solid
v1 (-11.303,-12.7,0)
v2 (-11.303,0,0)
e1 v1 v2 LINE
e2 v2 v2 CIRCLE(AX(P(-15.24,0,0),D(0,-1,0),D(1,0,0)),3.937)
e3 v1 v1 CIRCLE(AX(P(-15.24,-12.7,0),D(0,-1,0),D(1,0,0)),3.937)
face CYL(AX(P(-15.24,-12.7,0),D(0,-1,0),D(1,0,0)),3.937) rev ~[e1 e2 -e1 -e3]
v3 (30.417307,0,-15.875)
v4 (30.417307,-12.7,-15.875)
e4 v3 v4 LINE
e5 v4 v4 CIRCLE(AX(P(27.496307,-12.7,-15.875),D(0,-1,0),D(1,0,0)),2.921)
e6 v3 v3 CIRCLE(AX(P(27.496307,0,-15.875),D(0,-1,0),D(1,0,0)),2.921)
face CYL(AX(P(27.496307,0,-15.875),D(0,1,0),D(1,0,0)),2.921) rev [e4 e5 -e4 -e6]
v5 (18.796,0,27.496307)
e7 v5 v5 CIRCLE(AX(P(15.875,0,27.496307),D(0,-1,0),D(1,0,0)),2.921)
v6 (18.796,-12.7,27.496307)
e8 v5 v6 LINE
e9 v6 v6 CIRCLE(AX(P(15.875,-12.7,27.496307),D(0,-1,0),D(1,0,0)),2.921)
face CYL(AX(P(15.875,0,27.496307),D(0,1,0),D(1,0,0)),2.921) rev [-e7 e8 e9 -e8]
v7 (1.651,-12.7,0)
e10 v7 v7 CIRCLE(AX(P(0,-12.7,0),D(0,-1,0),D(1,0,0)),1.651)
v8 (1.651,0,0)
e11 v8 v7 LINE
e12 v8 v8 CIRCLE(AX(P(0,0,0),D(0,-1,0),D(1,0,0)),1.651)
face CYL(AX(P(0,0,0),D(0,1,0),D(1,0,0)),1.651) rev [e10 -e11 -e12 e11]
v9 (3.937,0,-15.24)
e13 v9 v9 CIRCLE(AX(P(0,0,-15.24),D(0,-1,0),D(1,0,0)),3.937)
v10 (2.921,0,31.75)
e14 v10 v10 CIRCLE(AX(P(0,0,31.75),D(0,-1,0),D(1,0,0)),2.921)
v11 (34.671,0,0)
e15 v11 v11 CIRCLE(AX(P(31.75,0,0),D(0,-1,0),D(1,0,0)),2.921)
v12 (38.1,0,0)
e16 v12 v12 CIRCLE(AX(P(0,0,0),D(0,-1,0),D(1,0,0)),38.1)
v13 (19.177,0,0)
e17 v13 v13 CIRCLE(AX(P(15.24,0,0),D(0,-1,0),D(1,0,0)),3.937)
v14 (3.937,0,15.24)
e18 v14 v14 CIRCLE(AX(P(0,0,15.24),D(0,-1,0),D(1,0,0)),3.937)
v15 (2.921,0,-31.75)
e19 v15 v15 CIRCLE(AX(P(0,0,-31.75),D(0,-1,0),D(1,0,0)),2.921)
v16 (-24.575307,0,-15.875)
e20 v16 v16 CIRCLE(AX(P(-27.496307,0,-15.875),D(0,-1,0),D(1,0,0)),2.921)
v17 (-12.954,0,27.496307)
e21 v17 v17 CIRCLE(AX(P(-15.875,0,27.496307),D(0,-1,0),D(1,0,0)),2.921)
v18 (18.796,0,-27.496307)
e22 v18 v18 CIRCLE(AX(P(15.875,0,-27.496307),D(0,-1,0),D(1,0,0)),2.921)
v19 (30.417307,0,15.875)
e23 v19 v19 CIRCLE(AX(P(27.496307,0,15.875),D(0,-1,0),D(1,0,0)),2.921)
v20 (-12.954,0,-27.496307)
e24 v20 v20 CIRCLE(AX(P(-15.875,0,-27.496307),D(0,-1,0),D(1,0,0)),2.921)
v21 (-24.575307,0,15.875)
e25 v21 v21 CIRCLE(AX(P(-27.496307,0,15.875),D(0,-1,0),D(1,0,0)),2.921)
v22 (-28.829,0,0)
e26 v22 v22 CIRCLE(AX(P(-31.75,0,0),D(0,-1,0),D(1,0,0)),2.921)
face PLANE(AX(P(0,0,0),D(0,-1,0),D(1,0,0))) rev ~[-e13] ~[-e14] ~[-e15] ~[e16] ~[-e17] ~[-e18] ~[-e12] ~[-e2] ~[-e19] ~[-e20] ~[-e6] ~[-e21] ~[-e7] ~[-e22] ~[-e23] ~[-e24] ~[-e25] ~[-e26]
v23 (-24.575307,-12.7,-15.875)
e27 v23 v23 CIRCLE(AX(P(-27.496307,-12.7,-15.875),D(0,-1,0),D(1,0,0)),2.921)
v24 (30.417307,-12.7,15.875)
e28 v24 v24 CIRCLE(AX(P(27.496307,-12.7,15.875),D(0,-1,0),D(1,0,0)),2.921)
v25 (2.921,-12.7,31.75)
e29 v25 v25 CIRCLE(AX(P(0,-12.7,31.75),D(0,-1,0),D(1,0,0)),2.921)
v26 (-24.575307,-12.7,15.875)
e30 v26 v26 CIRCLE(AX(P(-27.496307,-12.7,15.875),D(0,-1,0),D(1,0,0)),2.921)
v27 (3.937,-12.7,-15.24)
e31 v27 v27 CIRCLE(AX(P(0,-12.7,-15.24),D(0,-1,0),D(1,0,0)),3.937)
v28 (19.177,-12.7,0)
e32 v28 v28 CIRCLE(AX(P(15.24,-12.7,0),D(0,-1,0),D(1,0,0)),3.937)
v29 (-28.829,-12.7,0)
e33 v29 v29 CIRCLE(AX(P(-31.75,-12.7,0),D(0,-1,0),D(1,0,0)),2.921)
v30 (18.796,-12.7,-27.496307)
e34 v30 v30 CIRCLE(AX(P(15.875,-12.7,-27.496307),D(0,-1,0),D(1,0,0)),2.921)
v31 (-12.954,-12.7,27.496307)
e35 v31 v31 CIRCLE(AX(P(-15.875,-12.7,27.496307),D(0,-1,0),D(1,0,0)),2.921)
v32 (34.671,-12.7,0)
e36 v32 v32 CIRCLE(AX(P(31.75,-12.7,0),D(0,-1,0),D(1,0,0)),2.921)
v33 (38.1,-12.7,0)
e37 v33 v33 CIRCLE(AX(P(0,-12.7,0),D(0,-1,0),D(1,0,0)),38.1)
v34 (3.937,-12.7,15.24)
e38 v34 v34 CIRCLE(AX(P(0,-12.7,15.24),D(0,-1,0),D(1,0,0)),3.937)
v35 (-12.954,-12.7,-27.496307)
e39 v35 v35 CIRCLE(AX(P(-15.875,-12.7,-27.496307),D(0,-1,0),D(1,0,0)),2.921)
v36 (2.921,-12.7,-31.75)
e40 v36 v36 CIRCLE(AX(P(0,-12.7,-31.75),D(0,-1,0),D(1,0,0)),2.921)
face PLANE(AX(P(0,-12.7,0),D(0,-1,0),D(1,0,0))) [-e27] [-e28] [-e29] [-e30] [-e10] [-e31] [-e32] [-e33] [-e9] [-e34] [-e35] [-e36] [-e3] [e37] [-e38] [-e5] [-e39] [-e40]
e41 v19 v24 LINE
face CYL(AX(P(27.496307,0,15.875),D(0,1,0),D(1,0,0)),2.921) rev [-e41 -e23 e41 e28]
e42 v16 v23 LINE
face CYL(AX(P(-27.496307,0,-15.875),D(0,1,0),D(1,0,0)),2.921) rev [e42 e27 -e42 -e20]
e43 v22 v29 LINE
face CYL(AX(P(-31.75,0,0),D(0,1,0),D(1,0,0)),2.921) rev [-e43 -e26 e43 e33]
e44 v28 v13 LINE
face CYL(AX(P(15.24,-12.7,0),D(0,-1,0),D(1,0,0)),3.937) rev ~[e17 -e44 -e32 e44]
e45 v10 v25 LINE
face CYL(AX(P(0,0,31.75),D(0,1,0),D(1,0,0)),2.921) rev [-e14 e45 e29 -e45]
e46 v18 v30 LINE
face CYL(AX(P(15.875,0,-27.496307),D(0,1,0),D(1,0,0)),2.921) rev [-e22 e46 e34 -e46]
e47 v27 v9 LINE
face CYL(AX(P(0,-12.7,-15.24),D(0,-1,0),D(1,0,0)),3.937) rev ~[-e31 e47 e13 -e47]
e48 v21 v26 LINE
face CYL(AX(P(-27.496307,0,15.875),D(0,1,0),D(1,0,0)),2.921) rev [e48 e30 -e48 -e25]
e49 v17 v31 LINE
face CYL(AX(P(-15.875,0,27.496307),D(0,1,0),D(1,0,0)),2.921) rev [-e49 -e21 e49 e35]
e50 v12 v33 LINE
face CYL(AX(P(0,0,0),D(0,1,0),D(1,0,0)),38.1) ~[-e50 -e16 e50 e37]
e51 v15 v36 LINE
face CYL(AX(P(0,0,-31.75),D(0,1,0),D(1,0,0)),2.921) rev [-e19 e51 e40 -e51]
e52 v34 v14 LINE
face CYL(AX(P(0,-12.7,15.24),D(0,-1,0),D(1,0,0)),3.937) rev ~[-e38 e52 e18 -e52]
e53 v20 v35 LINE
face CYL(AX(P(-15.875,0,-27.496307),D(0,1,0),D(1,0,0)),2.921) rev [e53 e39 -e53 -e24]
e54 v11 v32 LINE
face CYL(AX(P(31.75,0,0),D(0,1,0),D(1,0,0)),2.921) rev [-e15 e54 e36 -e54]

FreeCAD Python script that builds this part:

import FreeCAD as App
import Part
import Sketcher
Q = App.Units.Quantity

doc = App.newDocument("Part")
body = doc.addObject("PartDesign::Body", "Body")

sketch1 = body.newObject("Sketcher::SketchObject", "Sketch")
sketch1.AttachmentSupport = (doc.getObject("XZ_Plane"), [""])
sketch1.MapMode = "FlatFace"
sketch1.addGeometry(Part.Circle(App.Vector(0, 0, 0), App.Vector(0, 0, 1), 38.1), False)
sketch1.addGeometry(Part.Circle(App.Vector(-15.9, -27.5, 0), App.Vector(0, 0, 1), 2.9), False)
sketch1.addGeometry(Part.Circle(App.Vector(-27.5, -15.9, 0), App.Vector(0, 0, 1), 2.9), False)
sketch1.addGeometry(Part.Circle(App.Vector(0, -31.8, 0), App.Vector(0, 0, 1), 2.9), False)
sketch1.addGeometry(Part.Circle(App.Vector(15.9, -27.5, 0), App.Vector(0, 0, 1), 2.9), False)
sketch1.addGeometry(Part.Circle(App.Vector(27.5, -15.9, 0), App.Vector(0, 0, 1), 2.9), False)
sketch1.addGeometry(Part.Circle(App.Vector(-31.8, 0, 0), App.Vector(0, 0, 1), 2.9), False)
sketch1.addGeometry(Part.Circle(App.Vector(-27.5, 15.9, 0), App.Vector(0, 0, 1), 2.9), False)
sketch1.addGeometry(Part.Circle(App.Vector(-15.9, 27.5, 0), App.Vector(0, 0, 1), 2.9), False)
sketch1.addGeometry(Part.Circle(App.Vector(0, 0, 0), App.Vector(0, 0, 1), 1.7), False)
sketch1.addGeometry(Part.Circle(App.Vector(31.8, 0, 0), App.Vector(0, 0, 1), 2.9), False)
sketch1.addGeometry(Part.Circle(App.Vector(27.5, 15.9, 0), App.Vector(0, 0, 1), 2.9), False)
sketch1.addGeometry(Part.Circle(App.Vector(0, 31.8, 0), App.Vector(0, 0, 1), 2.9), False)
sketch1.addGeometry(Part.Circle(App.Vector(15.9, 27.5, 0), App.Vector(0, 0, 1), 2.9), False)
sketch1.addConstraint(Sketcher.Constraint("Coincident", 0, 3, -1, 1))
sketch1.addConstraint(Sketcher.Constraint("Coincident", 9, 3, -1, 1))
sketch1.addConstraint(Sketcher.Constraint("Equal", 1, 2))
sketch1.addConstraint(Sketcher.Constraint("Equal", 2, 3))
sketch1.addConstraint(Sketcher.Constraint("Equal", 3, 4))
sketch1.addConstraint(Sketcher.Constraint("Equal", 4, 5))
sketch1.addConstraint(Sketcher.Constraint("Equal", 5, 6))
sketch1.addConstraint(Sketcher.Constraint("Equal", 6, 7))
sketch1.addConstraint(Sketcher.Constraint("Equal", 7, 8))
sketch1.addConstraint(Sketcher.Constraint("Equal", 8, 10))
sketch1.addConstraint(Sketcher.Constraint("Equal", 10, 11))
sketch1.addConstraint(Sketcher.Constraint("Equal", 11, 12))
sketch1.addConstraint(Sketcher.Constraint("Equal", 12, 13))
sketch1.addConstraint(Sketcher.Constraint("Symmetric", 5, 3, 7, 3, -1, 1))
sketch1.addConstraint(Sketcher.Constraint("Symmetric", 4, 3, 8, 3, -1, 1))
sketch1.addConstraint(Sketcher.Constraint("Symmetric", 6, 3, 10, 3, -1, 1))
sketch1.addConstraint(Sketcher.Constraint("Symmetric", 2, 3, 11, 3, -1, 1))
sketch1.addConstraint(Sketcher.Constraint("Symmetric", 3, 3, 12, 3, -1, 1))
sketch1.addConstraint(Sketcher.Constraint("Symmetric", 1, 3, 13, 3, -1, 1))
sketch1.addConstraint(Sketcher.Constraint("Symmetric", 1, 3, 4, 3, -2))
sketch1.addConstraint(Sketcher.Constraint("Symmetric", 2, 3, 5, 3, -2))
sketch1.addConstraint(Sketcher.Constraint("PointOnObject", 3, 3, -2))
sketch1.addConstraint(Sketcher.Constraint("PointOnObject", 6, 3, -1))
sketch1.addConstraint(Sketcher.Constraint("Diameter", 0, Q("3 in")))
sketch1.addConstraint(Sketcher.Constraint("Diameter", 1, Q("0.23 in")))
sketch1.addConstraint(Sketcher.Constraint("Diameter", 9, Q("0.13 in")))
sketch1.addConstraint(Sketcher.Constraint("DistanceY", 3, 3, -1, 1, Q("1.25 in")))
sketch1.addConstraint(Sketcher.Constraint("DistanceX", 6, 3, -1, 1, Q("1.25 in")))
sketch1.addConstraint(Sketcher.Constraint("DistanceX", 1, 3, 4, 3, Q("1.25 in")))
sketch1.addConstraint(Sketcher.Constraint("DistanceY", 2, 3, 7, 3, Q("1.25 in")))
sketch1.addConstraint(Sketcher.Constraint("DistanceY", 1, 3, -1, 1, 27.496307))
sketch1.addConstraint(Sketcher.Constraint("DistanceX", 2, 3, -1, 1, 27.496307))
pad1 = body.newObject("PartDesign::Pad", "Pad")
pad1.Profile = sketch1
pad1.Length = Q("0.5 in")

sketch2 = body.newObject("Sketcher::SketchObject", "Sketch001")
sketch2.AttachmentSupport = (doc.getObject("XZ_Plane"), [""])
sketch2.MapMode = "FlatFace"
sketch2.AttachmentOffset = App.Placement(App.Vector(0, 0, 0.5 * 25.4), App.Rotation())
sketch2.addGeometry(Part.Circle(App.Vector(0, 15.2, 0), App.Vector(0, 0, 1), 3.9), False)
sketch2.addGeometry(Part.Circle(App.Vector(15.2, 0, 0), App.Vector(0, 0, 1), 3.9), False)
sketch2.addGeometry(Part.Circle(App.Vector(-15.2, 0, 0), App.Vector(0, 0, 1), 3.9), False)
sketch2.addGeometry(Part.Circle(App.Vector(0, -15.2, 0), App.Vector(0, 0, 1), 3.9), False)
sketch2.addConstraint(Sketcher.Constraint("Equal", 0, 1))
sketch2.addConstraint(Sketcher.Constraint("Equal", 1, 2))
sketch2.addConstraint(Sketcher.Constraint("Equal", 2, 3))
sketch2.addConstraint(Sketcher.Constraint("Symmetric", 1, 3, 2, 3, -1, 1))
sketch2.addConstraint(Sketcher.Constraint("Symmetric", 0, 3, 3, 3, -1, 1))
sketch2.addConstraint(Sketcher.Constraint("PointOnObject", 0, 3, -2))
sketch2.addConstraint(Sketcher.Constraint("PointOnObject", 1, 3, -1))
sketch2.addConstraint(Sketcher.Constraint("Diameter", 0, Q("0.31 in")))
sketch2.addConstraint(Sketcher.Constraint("DistanceY", -1, 1, 0, 3, Q("0.6 in")))
sketch2.addConstraint(Sketcher.Constraint("DistanceX", -1, 1, 1, 3, Q("0.6 in")))
pocket1 = body.newObject("PartDesign::Pocket", "Pocket")
pocket1.Profile = sketch2
pocket1.Length = Q("1 in")

doc.recompute()
